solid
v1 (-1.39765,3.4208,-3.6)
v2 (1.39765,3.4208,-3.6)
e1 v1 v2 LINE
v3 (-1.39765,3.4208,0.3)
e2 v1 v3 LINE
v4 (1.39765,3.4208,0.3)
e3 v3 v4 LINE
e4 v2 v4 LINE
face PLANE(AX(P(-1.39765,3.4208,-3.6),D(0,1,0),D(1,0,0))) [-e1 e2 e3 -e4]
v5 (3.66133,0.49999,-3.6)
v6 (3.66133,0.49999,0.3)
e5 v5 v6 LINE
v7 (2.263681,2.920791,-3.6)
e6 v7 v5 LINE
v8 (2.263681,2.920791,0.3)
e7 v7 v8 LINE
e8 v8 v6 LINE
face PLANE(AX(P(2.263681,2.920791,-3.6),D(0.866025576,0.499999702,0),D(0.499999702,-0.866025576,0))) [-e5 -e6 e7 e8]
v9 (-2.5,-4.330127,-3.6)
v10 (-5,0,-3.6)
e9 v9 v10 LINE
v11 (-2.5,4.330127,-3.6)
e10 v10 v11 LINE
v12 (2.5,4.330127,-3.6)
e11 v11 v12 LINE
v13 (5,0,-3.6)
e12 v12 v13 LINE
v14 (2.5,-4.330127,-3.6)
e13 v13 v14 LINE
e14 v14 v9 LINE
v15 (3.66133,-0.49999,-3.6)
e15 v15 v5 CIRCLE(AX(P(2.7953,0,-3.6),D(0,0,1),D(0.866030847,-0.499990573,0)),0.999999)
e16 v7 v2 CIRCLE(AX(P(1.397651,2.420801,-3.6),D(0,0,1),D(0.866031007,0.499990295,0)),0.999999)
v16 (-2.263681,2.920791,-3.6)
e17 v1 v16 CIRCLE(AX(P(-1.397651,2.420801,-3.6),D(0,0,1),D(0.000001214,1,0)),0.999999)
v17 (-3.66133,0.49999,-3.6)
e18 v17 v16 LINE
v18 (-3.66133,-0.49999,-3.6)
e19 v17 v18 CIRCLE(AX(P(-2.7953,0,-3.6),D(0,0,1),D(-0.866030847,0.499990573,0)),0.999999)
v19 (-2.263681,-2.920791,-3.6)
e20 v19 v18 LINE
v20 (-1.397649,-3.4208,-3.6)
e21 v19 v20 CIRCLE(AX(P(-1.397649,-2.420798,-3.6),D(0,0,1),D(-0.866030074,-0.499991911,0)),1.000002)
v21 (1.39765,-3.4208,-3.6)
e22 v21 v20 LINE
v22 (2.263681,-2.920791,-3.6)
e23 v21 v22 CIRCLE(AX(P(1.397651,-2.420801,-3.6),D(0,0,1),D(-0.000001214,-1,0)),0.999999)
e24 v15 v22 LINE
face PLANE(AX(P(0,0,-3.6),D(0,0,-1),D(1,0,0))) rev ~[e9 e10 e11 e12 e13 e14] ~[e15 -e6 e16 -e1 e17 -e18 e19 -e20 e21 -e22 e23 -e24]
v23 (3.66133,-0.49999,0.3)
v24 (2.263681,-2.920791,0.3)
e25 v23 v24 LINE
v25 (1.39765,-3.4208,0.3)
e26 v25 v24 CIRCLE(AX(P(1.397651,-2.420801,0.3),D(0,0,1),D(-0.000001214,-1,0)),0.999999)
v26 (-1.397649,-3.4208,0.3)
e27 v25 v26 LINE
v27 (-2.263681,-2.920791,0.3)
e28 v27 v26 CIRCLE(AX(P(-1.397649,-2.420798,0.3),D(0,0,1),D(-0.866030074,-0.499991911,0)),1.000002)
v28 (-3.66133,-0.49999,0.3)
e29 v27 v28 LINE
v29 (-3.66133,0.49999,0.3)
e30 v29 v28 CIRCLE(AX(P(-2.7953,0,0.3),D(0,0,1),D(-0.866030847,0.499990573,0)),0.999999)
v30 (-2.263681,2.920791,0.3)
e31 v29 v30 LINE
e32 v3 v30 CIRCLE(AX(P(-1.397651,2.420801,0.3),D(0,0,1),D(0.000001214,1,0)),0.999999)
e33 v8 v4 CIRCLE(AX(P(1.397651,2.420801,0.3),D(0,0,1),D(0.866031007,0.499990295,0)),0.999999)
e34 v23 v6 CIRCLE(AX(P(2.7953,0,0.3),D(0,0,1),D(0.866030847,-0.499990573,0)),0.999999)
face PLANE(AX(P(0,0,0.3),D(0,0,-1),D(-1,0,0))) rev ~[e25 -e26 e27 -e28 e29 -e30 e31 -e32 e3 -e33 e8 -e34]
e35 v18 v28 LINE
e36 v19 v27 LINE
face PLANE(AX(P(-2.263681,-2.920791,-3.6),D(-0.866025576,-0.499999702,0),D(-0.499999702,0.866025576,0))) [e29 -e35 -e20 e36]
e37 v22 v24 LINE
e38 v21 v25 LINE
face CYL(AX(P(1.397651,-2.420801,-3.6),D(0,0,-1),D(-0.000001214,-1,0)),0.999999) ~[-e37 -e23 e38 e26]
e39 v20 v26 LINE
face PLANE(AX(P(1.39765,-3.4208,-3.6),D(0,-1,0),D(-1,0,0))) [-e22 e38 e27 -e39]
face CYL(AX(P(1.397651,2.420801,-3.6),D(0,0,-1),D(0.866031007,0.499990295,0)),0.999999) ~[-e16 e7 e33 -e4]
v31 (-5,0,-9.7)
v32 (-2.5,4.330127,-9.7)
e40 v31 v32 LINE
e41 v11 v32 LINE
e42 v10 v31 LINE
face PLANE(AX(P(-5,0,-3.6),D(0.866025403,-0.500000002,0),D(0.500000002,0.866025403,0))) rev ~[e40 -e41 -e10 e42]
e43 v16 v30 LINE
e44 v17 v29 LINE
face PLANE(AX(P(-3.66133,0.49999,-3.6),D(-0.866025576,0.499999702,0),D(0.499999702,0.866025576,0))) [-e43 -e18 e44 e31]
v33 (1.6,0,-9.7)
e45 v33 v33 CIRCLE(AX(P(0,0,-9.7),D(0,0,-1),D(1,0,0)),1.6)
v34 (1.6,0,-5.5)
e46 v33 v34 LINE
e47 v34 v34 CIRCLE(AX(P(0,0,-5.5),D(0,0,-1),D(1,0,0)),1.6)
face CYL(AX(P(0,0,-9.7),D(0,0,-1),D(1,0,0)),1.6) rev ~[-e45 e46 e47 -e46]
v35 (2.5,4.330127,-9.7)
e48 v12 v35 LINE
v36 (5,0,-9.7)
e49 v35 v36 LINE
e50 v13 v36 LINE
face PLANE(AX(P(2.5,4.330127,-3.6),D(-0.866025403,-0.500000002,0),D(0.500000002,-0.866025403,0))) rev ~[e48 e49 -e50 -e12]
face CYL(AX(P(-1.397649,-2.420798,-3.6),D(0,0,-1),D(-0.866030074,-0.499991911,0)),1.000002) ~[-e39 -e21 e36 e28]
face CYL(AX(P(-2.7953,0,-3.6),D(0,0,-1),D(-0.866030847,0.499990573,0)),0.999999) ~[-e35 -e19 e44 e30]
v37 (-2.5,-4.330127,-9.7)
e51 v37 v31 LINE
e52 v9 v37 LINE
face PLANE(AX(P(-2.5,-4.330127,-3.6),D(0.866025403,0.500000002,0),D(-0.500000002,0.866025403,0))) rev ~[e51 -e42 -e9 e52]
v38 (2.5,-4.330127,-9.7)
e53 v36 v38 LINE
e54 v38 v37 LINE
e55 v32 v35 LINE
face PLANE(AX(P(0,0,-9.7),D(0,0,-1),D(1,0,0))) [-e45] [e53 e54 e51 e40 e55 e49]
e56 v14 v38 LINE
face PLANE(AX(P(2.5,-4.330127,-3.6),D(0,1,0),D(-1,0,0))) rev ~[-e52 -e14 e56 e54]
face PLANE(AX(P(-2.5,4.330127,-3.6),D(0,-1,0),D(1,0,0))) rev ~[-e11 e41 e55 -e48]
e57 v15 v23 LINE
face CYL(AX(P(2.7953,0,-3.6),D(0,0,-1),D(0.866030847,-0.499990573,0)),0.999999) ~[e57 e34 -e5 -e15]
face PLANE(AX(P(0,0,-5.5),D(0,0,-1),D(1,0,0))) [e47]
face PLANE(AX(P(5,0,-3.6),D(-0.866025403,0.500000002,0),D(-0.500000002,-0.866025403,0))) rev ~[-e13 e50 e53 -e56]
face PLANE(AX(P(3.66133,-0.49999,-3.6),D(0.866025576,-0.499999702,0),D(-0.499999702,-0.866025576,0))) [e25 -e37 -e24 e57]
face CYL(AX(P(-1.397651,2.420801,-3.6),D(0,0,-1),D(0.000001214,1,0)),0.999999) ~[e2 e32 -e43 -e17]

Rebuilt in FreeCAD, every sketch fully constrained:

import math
import FreeCAD as App
import Part
import Sketcher

V = App.Vector
Q = App.Units.Quantity

doc = App.newDocument("Part")
body = doc.addObject("PartDesign::Body", "Body")

sketch1 = body.newObject("Sketcher::SketchObject", "Sketch")
sketch1.AttachmentSupport = (doc.getObject("XY_Plane"), [""])
sketch1.MapMode = "FlatFace"
sketch1.addGeometry([
    Part.LineSegment(V(-2.263681, 2.920791, 0), V(-3.66133, 0.49999, 0)),
    Part.ArcOfCircle(Part.Circle(V(-2.7953, 0, 0), V(0, 0, 1), 0.999999), math.radians(150.000624), math.radians(209.999376)),
    Part.LineSegment(V(-3.66133, -0.49999, 0), V(-2.263681, -2.920791, 0)),
    Part.ArcOfCircle(Part.Circle(V(-1.397649, -2.420798, 0), V(0, 0, 1), 1.000002), math.radians(-150.000535), math.radians(-89.99998)),
    Part.LineSegment(V(-1.397649, -3.4208, 0), V(1.39765, -3.4208, 0)),
    Part.ArcOfCircle(Part.Circle(V(1.397651, -2.420801, 0), V(0, 0, 1), 0.999999), math.radians(-90.00007), math.radians(-29.999358)),
    Part.LineSegment(V(2.263681, -2.920791, 0), V(3.66133, -0.49999, 0)),
    Part.ArcOfCircle(Part.Circle(V(2.7953, 0, 0), V(0, 0, 1), 0.999999), math.radians(-29.999376), math.radians(29.999376)),
    Part.LineSegment(V(3.66133, 0.49999, 0), V(2.263681, 2.920791, 0)),
    Part.ArcOfCircle(Part.Circle(V(1.397651, 2.420801, 0), V(0, 0, 1), 0.999999), math.radians(29.999358), math.radians(90.00007)),
    Part.LineSegment(V(1.39765, 3.4208, 0), V(-1.39765, 3.4208, 0)),
    Part.ArcOfCircle(Part.Circle(V(-1.397651, 2.420801, 0), V(0, 0, 1), 0.999999), math.radians(89.99993), math.radians(150.000642)),
], False)
sketch1.addConstraint([
    Sketcher.Constraint("Coincident", 0, 2, 1, 1),
    Sketcher.Constraint("Coincident", 1, 2, 2, 1),
    Sketcher.Constraint("Coincident", 2, 2, 3, 1),
    Sketcher.Constraint("Tangent", 3, 2, 4, 1),
    Sketcher.Constraint("Tangent", 4, 2, 5, 1),
    Sketcher.Constraint("Coincident", 5, 2, 6, 1),
    Sketcher.Constraint("Coincident", 6, 2, 7, 1),
    Sketcher.Constraint("Coincident", 7, 2, 8, 1),
    Sketcher.Constraint("Coincident", 8, 2, 9, 1),
    Sketcher.Constraint("Tangent", 9, 2, 10, 1),
    Sketcher.Constraint("Tangent", 10, 2, 11, 1),
    Sketcher.Constraint("Coincident", 11, 2, 0, 1),
    Sketcher.Constraint("Horizontal", 4),
    Sketcher.Constraint("Horizontal", 10),
    Sketcher.Constraint("Equal", 1, 5),
    Sketcher.Constraint("Equal", 5, 7),
    Sketcher.Constraint("Equal", 7, 9),
    Sketcher.Constraint("Equal", 9, 11),
    Sketcher.Constraint("Symmetric", 1, 3, 7, 3, -1, 1),
    Sketcher.Constraint("Symmetric", 3, 3, 9, 3, -1, 1),
    Sketcher.Constraint("Symmetric", 5, 3, 11, 3, -1, 1),
    Sketcher.Constraint("Symmetric", 2, 2, 5, 2, -2),
    Sketcher.Constraint("Symmetric", 1, 2, 6, 2, -2),
    Sketcher.Constraint("Horizontal", 0, 2, 7, 2),
    Sketcher.Constraint("Horizontal", 8, 2, 11, 2),
    Sketcher.Constraint("Vertical", 0, 2, 1, 2),
    Sketcher.Constraint("Vertical", 5, 2, 8, 2),
    Sketcher.Constraint("Radius", 1, 0.999999),
    Sketcher.Constraint("Angle", 0, Q("-119.99998 deg")),
    Sketcher.Constraint("DistanceX", 4, 1, 4, 2, 2.795299),
    Sketcher.Constraint("Distance", 0, 2.7953),
    Sketcher.Constraint("DistanceX", 1, 3, -1, 1, 2.7953),
    Sketcher.Constraint("DistanceX", 0, 2, -1, 1, 3.66133),
])
pad1 = body.newObject("PartDesign::Pad", "Pad")
pad1.Profile = sketch1
pad1.Length = 3.9

sketch2 = body.newObject("Sketcher::SketchObject", "Sketch001")
sketch2.AttachmentSupport = (doc.getObject("XY_Plane"), [""])
sketch2.MapMode = "FlatFace"
sketch2.addGeometry([
    Part.LineSegment(V(5, 0, 0), V(2.5, -4.330127, 0)),
    Part.LineSegment(V(2.5, -4.330127, 0), V(-2.5, -4.330127, 0)),
    Part.LineSegment(V(-2.5, -4.330127, 0), V(-5, 0, 0)),
    Part.LineSegment(V(-5, 0, 0), V(-2.5, 4.330127, 0)),
    Part.LineSegment(V(-2.5, 4.330127, 0), V(2.5, 4.330127, 0)),
    Part.LineSegment(V(2.5, 4.330127, 0), V(5, 0, 0)),
], False)
sketch2.addConstraint([
    Sketcher.Constraint("Coincident", 0, 2, 1, 1),
    Sketcher.Constraint("Coincident", 1, 2, 2, 1),
    Sketcher.Constraint("Coincident", 2, 2, 3, 1),
    Sketcher.Constraint("Coincident", 3, 2, 4, 1),
    Sketcher.Constraint("Coincident", 4, 2, 5, 1),
    Sketcher.Constraint("Coincident", 5, 2, 0, 1),
    Sketcher.Constraint("Horizontal", 1),
    Sketcher.Constraint("Horizontal", 4),
    Sketcher.Constraint("Symmetric", 0, 2, 3, 2, -1, 1),
    Sketcher.Constraint("Symmetric", 2, 2, 5, 2, -1, 1),
    Sketcher.Constraint("PointOnObject", 2, 2, -1),
    Sketcher.Constraint("Parallel", 2, 5),
    Sketcher.Constraint("Vertical", 1, 2, 3, 2),
    Sketcher.Constraint("DistanceX", 1, 2, 1, 1, 5.0),
    Sketcher.Constraint("Angle", 0, Q("-120 deg")),
    Sketcher.Constraint("Distance", 0, 5.0),
])
pad2 = body.newObject("PartDesign::Pad", "Pad001")
pad2.Profile = sketch2
pad2.Length = 6.1
pad2.Reversed = True

sketch3 = body.newObject("Sketcher::SketchObject", "Sketch002")
sketch3.AttachmentSupport = (doc.getObject("XY_Plane"), [""])
sketch3.MapMode = "FlatFace"
sketch3.AttachmentOffset = App.Placement(V(0, 0, -6.1), App.Rotation())
sketch3.addGeometry(Part.Circle(V(0, 0, 0), V(0, 0, 1), 1.6), False)
sketch3.addConstraint([
    Sketcher.Constraint("Coincident", 0, 3, -1, 1),
    Sketcher.Constraint("Diameter", 0, 3.2),
])
pocket1 = body.newObject("PartDesign::Pocket", "Pocket")
pocket1.Profile = sketch3
pocket1.Length = 4.2
pocket1.Reversed = True
body2 = doc.addObject("PartDesign::Body", "Body001")
doc.recompute()

body.Placement = App.Placement(V(0, 0, -3.6), App.Rotation(V(0, 0, 1), 0))
boolean = body2.newObject("PartDesign::Boolean", "Boolean")
boolean.Type = "Fuse"
boolean.addObjects([body])

doc.recompute()
